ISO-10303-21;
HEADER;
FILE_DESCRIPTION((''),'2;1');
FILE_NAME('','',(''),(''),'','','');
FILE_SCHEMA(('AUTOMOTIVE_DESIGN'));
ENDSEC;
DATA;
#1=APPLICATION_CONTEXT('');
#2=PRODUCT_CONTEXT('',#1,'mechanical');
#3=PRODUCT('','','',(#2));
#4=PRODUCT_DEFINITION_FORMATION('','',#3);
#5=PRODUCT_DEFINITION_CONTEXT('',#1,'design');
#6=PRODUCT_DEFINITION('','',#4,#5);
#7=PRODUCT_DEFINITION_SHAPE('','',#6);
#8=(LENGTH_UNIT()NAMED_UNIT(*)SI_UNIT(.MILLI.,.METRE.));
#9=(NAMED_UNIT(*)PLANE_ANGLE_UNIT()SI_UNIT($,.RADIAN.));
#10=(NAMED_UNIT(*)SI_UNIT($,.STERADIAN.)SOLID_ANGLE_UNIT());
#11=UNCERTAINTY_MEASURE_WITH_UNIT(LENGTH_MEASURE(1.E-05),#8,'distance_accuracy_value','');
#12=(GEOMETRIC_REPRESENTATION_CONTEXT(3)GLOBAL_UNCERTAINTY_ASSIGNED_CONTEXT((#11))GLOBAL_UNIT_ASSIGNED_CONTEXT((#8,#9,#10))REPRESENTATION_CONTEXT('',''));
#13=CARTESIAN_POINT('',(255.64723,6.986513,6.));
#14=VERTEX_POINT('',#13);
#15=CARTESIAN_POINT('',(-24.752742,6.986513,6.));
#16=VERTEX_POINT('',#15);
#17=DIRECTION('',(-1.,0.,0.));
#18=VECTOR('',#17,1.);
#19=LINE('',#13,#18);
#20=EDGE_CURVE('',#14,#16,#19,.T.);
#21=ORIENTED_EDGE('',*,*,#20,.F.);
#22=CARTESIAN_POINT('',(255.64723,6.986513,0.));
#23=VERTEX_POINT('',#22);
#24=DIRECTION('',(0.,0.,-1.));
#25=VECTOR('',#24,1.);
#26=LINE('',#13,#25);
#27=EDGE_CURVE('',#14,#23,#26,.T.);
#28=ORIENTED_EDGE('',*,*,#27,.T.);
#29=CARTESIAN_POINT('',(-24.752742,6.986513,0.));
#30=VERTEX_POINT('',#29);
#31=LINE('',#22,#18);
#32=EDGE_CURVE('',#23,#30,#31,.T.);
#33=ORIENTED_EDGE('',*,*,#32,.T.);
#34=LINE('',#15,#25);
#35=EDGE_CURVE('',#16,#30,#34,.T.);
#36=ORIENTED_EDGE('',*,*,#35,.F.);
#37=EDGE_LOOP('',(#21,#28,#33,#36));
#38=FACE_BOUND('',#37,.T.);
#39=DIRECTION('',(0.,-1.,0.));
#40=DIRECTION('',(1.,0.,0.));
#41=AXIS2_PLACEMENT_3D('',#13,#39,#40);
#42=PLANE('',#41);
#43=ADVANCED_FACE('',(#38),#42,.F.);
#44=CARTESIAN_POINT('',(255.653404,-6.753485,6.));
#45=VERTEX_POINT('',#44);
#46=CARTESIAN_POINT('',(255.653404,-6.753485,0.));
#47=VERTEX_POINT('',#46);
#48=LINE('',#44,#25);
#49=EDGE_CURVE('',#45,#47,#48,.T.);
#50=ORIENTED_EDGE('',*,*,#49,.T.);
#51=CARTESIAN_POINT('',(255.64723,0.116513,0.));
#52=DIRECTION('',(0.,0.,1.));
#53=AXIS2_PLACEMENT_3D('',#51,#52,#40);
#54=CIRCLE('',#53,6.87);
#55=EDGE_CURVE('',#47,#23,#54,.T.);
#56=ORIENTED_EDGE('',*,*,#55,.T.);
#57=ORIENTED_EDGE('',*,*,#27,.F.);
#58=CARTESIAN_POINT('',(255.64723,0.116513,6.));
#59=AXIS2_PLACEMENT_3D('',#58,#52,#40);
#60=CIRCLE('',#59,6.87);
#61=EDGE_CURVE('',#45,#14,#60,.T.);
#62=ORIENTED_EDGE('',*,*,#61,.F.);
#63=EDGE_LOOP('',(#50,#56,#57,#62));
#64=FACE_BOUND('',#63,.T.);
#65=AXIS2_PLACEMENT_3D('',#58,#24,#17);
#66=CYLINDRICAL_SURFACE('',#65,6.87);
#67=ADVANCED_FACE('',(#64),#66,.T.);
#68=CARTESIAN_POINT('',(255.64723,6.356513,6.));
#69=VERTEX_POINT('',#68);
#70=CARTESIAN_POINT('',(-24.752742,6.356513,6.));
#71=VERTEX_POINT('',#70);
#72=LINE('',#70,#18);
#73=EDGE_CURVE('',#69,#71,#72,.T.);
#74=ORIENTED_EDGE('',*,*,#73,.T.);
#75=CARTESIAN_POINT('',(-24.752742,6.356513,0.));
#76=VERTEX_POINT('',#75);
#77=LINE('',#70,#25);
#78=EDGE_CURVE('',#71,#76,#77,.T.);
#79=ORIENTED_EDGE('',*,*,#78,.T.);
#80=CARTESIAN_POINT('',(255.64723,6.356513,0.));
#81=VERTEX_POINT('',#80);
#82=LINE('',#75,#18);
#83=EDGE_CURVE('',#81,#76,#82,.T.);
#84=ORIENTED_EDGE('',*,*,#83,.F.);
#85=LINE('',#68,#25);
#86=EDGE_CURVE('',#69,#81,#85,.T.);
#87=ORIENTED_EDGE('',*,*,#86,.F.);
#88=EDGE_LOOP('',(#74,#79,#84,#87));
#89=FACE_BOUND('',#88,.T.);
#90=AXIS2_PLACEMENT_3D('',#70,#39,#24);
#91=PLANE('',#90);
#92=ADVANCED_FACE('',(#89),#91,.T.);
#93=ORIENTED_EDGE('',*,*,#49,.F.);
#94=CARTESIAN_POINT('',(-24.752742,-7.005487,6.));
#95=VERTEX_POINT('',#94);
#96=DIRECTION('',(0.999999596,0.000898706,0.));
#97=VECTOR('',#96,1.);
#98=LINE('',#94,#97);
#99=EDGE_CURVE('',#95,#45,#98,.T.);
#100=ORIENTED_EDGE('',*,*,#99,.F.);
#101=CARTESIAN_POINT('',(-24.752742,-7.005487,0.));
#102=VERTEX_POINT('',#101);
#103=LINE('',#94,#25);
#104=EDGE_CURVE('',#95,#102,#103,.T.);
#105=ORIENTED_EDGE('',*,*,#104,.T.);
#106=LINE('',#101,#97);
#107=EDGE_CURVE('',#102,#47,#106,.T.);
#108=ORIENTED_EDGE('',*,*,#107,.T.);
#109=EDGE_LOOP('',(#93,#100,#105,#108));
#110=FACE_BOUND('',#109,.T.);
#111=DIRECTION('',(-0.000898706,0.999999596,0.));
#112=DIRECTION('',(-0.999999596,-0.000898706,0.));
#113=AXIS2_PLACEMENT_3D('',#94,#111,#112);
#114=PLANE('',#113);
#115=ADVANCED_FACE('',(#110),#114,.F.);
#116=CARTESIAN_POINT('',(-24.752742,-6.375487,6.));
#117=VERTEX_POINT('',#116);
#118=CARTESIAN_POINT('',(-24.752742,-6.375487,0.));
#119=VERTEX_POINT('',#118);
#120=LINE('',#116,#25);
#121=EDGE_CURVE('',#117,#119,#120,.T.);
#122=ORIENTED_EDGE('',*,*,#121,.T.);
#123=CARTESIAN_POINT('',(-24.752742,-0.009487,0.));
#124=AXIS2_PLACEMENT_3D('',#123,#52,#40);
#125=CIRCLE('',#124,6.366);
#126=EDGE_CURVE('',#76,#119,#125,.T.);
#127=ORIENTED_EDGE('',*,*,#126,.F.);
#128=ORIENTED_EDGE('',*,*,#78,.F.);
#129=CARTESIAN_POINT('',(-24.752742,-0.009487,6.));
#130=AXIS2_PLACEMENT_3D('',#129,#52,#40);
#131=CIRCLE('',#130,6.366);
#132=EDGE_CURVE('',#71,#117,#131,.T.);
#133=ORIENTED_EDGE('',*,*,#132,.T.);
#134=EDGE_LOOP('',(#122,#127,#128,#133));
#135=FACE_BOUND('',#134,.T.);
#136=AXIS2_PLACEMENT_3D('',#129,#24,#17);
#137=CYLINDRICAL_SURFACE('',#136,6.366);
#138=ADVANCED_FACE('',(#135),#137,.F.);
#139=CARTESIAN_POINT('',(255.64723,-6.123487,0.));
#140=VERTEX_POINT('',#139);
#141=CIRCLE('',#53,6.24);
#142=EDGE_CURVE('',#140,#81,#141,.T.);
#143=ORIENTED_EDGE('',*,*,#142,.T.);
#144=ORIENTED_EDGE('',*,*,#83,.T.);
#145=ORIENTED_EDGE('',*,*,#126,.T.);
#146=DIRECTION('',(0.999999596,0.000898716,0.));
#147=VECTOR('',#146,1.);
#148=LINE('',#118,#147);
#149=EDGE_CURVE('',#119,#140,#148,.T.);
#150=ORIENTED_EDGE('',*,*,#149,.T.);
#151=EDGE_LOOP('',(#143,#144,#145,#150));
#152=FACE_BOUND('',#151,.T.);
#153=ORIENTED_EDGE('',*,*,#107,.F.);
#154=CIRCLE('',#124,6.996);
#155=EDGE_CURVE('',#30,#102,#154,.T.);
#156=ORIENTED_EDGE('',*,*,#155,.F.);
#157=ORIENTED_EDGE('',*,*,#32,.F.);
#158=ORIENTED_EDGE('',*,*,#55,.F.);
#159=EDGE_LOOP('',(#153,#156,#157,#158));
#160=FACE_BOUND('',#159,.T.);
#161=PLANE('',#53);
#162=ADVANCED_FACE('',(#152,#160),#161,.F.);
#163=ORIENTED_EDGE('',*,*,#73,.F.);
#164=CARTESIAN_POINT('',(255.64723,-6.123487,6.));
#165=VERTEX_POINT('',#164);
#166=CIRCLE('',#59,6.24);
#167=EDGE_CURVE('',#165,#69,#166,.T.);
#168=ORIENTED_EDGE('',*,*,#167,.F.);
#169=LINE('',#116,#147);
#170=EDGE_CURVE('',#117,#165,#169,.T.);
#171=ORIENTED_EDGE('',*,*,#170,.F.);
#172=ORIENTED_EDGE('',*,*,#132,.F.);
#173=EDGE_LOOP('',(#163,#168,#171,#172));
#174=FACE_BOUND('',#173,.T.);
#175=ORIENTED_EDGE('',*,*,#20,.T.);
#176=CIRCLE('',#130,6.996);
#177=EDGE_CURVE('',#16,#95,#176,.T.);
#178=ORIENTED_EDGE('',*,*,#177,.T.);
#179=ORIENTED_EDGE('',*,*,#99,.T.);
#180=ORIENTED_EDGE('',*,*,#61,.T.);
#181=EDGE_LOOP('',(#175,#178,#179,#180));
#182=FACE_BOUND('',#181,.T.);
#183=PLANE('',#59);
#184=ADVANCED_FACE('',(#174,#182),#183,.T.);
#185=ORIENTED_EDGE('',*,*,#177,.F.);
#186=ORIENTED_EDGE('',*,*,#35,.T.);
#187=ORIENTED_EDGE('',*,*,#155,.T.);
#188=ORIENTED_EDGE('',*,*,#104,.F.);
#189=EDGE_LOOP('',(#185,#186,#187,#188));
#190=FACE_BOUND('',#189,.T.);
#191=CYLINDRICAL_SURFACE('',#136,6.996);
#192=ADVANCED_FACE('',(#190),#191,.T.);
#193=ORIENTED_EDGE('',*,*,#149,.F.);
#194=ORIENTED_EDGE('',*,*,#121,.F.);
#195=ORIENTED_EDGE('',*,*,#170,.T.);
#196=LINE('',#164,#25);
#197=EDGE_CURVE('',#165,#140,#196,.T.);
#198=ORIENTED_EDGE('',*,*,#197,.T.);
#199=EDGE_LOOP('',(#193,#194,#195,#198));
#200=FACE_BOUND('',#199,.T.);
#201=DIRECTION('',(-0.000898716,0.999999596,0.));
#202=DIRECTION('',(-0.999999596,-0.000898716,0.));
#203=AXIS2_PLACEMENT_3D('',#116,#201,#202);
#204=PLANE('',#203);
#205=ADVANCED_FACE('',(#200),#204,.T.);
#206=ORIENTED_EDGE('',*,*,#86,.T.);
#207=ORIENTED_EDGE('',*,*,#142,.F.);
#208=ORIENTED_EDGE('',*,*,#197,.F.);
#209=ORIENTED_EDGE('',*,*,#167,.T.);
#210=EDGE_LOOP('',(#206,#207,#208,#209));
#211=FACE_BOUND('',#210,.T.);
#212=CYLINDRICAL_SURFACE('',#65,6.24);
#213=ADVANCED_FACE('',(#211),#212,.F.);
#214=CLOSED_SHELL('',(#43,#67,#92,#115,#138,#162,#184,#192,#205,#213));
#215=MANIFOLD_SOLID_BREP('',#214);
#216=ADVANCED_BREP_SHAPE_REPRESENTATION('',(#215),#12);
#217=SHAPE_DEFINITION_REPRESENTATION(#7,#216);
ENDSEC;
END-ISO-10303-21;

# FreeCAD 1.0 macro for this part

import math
import FreeCAD as App
import Part
import Sketcher

doc = App.newDocument("Part")
params = doc.addObject("Spreadsheet::Sheet", "Params")
for row, (alias, value) in enumerate([
    ("sketch1_radius", "6.87 mm"),
    ("sketch1_radius2", "6.24 mm"),
    ("pad1_length", "6 mm"),
], start=1):
    params.set(f"A{row}", alias)
    params.set(f"B{row}", "=" + value)
    params.setAlias(f"B{row}", alias)

body = doc.addObject("PartDesign::Body", "Body")

# Sketch on XY plane
sketch1 = body.newObject("Sketcher::SketchObject", "Sketch")
sketch1.AttachmentSupport = (doc.getObject("XY_Plane"), [""])
sketch1.MapMode = "FlatFace"
sketch1.addGeometry([
    Part.LineSegment(App.Vector(256, 7, 0), App.Vector(-25, 7, 0)),  # 0
    Part.ArcOfCircle(Part.Circle(App.Vector(-25, 0, 0), App.Vector(0, 0, 1), 7), math.radians(90), math.radians(270)),  # 1
    Part.LineSegment(App.Vector(-25, -7, 0), App.Vector(256, -7, 0)),  # 2
    Part.ArcOfCircle(Part.Circle(App.Vector(256, 0, 0), App.Vector(0, 0, 1), 7), math.radians(-90), math.radians(90)),  # 3
    Part.ArcOfCircle(Part.Circle(App.Vector(-25, 0, 0), App.Vector(0, 0, 1), 6), math.radians(90), math.radians(270)),  # 4
    Part.LineSegment(App.Vector(-25, 6, 0), App.Vector(256, 6, 0)),  # 5
    Part.ArcOfCircle(Part.Circle(App.Vector(256, 0, 0), App.Vector(0, 0, 1), 6), math.radians(-90), math.radians(90)),  # 6
    Part.LineSegment(App.Vector(256, -6, 0), App.Vector(-25, -6, 0)),  # 7
], False)
sketch1.addConstraint([
    Sketcher.Constraint("Tangent", 0, 2, 1, 1),
    Sketcher.Constraint("Coincident", 1, 2, 2, 1),
    Sketcher.Constraint("Tangent", 2, 2, 3, 1),
    Sketcher.Constraint("Tangent", 3, 2, 0, 1),
    Sketcher.Constraint("Tangent", 4, 1, 5, 1),
    Sketcher.Constraint("Tangent", 5, 2, 6, 2),
    Sketcher.Constraint("Coincident", 6, 1, 7, 1),
    Sketcher.Constraint("Coincident", 7, 2, 4, 2),
    Sketcher.Constraint("Horizontal", 0),
    Sketcher.Constraint("Horizontal", 5),
    Sketcher.Constraint("Coincident", 4, 3, 1, 3),
    Sketcher.Constraint("Coincident", 6, 3, 3, 3),
    Sketcher.Constraint("Vertical", 0, 2, 1, 2),
    Sketcher.Constraint("Vertical", 5, 2, 6, 1),
    Sketcher.Constraint("Vertical", 4, 1, 7, 2),
    Sketcher.Constraint("Radius", 3, 6.87),
    Sketcher.Constraint("Radius", 6, 6.24),
    Sketcher.Constraint("Radius", 1, 6.996),
    Sketcher.Constraint("DistanceX", 0, 2, 0, 1, 280.399972),
    Sketcher.Constraint("DistanceX", 1, 3, -1, 1, 24.752742),
    Sketcher.Constraint("DistanceY", 1, 3, -1, 1, 0.009487),
])
sketch1.setExpression("Constraints[15]", "Params.sketch1_radius")
sketch1.setExpression("Constraints[16]", "Params.sketch1_radius2")
pad1 = body.newObject("PartDesign::Pad", "Pad")
pad1.Profile = sketch1
pad1.setExpression("Length", "Params.pad1_length")

doc.recompute()
